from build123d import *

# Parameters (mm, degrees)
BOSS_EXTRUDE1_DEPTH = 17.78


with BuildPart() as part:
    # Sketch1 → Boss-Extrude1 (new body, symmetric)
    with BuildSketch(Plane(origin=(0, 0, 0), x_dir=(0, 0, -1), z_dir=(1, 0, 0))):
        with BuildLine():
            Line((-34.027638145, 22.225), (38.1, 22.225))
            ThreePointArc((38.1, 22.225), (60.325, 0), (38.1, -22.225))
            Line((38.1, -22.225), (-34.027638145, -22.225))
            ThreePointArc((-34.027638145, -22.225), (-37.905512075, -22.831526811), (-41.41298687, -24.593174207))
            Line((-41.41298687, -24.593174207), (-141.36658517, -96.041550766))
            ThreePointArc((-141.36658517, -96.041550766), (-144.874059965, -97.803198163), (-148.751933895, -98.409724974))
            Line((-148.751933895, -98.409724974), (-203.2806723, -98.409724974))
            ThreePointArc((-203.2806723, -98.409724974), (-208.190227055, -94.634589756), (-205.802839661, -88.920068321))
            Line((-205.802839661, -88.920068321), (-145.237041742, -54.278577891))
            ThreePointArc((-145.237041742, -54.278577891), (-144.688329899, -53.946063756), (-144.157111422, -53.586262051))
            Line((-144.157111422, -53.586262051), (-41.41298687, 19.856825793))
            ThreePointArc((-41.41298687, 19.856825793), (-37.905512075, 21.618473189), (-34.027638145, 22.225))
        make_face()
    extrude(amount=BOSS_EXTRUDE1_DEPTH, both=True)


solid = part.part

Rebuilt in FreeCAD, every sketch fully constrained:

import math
import FreeCAD as App
import Part
import Sketcher

V = App.Vector
Q = App.Units.Quantity

doc = App.newDocument("Part")
body = doc.addObject("PartDesign::Body", "Body")

sketch1 = doc.addObject("Sketcher::SketchObject", "Sketch")
body.addObject(sketch1)
sketch1.AttachmentSupport = (doc.YZ_Plane, [""])
sketch1.MapMode = "FlatFace"
sketch1.addGeometry([
    Part.LineSegment(V(22.2, -38.1, 0), V(22.2, 34, 0)),
    Part.ArcOfCircle(Part.Circle(V(9.5, 34, 0), V(0, 0, 1), 12.7), math.radians(0), math.radians(36)),
    Part.LineSegment(V(19.9, 41.4, 0), V(-53.6, 144.2, 0)),
    Part.ArcOfCircle(Part.Circle(V(-43.3, 151.5, 0), V(0, 0, 1), 12.7), math.radians(-150.23), math.radians(-144.44)),
    Part.LineSegment(V(-54.3, 145.2, 0), V(-88.9, 205.8, 0)),
    Part.ArcOfCircle(Part.Circle(V(-93.3, 203.3, 0), V(0, 0, 1), 5.1), math.radians(30), math.radians(180)),
    Part.LineSegment(V(-98.4, 203.3, 0), V(-98.4, 148.8, 0)),
    Part.ArcOfCircle(Part.Circle(V(-85.7, 148.8, 0), V(0, 0, 1), 12.7), math.radians(-180), math.radians(-144)),
    Part.LineSegment(V(-96, 141.4, 0), V(-24.6, 41.4, 0)),
    Part.ArcOfCircle(Part.Circle(V(-34.9, 34, 0), V(0, 0, 1), 12.7), math.radians(0), math.radians(36)),
    Part.LineSegment(V(-22.2, 34, 0), V(-22.2, -38.1, 0)),
    Part.ArcOfCircle(Part.Circle(V(0, -38.1, 0), V(0, 0, 1), 22.2), math.radians(180), math.radians(360)),
], False)
sketch1.addConstraint([
    Sketcher.Constraint("Tangent", 0, 2, 1, 1),
    Sketcher.Constraint("Tangent", 1, 2, 2, 1),
    Sketcher.Constraint("Tangent", 2, 2, 3, 2),
    Sketcher.Constraint("Tangent", 3, 1, 4, 1),
    Sketcher.Constraint("Tangent", 4, 2, 5, 1),
    Sketcher.Constraint("Tangent", 5, 2, 6, 1),
    Sketcher.Constraint("Tangent", 6, 2, 7, 1),
    Sketcher.Constraint("Tangent", 7, 2, 8, 1),
    Sketcher.Constraint("Tangent", 8, 2, 9, 2),
    Sketcher.Constraint("Tangent", 9, 1, 10, 1),
    Sketcher.Constraint("Tangent", 10, 2, 11, 1),
    Sketcher.Constraint("Tangent", 11, 2, 0, 1),
    Sketcher.Constraint("Vertical", 0),
    Sketcher.Constraint("Vertical", 6),
    Sketcher.Constraint("Vertical", 10),
    Sketcher.Constraint("Equal", 1, 3),
    Sketcher.Constraint("Equal", 3, 7),
    Sketcher.Constraint("Equal", 7, 9),
    Sketcher.Constraint("Symmetric", 0, 2, 9, 1, -2),
    Sketcher.Constraint("Parallel", 2, 8),
    Sketcher.Constraint("Radius", 1, Q("0.5 in")),
    Sketcher.Constraint("Radius", 5, Q("0.2 in")),
    Sketcher.Constraint("Radius", 11, Q("0.875 in")),
    Sketcher.Constraint("DistanceY", 11, 3, -1, 1, Q("1.5 in")),
    Sketcher.Constraint("DistanceY", 0, 1, 0, 2, 72.127638),
    Sketcher.Constraint("DistanceY", 6, 2, 6, 1, 54.528738),
    Sketcher.Constraint("Distance", 2, 126.294269),
    Sketcher.Constraint("Distance", 8, 122.864121),
    Sketcher.Constraint("DistanceY", -1, 1, 3, 3, 151.54246),
])
pad1 = doc.addObject("PartDesign::Pad", "Pad")
body.addObject(pad1)
pad1.Profile = sketch1
pad1.Length = Q("1.4 in")
pad1.Midplane = True

doc.recompute()
